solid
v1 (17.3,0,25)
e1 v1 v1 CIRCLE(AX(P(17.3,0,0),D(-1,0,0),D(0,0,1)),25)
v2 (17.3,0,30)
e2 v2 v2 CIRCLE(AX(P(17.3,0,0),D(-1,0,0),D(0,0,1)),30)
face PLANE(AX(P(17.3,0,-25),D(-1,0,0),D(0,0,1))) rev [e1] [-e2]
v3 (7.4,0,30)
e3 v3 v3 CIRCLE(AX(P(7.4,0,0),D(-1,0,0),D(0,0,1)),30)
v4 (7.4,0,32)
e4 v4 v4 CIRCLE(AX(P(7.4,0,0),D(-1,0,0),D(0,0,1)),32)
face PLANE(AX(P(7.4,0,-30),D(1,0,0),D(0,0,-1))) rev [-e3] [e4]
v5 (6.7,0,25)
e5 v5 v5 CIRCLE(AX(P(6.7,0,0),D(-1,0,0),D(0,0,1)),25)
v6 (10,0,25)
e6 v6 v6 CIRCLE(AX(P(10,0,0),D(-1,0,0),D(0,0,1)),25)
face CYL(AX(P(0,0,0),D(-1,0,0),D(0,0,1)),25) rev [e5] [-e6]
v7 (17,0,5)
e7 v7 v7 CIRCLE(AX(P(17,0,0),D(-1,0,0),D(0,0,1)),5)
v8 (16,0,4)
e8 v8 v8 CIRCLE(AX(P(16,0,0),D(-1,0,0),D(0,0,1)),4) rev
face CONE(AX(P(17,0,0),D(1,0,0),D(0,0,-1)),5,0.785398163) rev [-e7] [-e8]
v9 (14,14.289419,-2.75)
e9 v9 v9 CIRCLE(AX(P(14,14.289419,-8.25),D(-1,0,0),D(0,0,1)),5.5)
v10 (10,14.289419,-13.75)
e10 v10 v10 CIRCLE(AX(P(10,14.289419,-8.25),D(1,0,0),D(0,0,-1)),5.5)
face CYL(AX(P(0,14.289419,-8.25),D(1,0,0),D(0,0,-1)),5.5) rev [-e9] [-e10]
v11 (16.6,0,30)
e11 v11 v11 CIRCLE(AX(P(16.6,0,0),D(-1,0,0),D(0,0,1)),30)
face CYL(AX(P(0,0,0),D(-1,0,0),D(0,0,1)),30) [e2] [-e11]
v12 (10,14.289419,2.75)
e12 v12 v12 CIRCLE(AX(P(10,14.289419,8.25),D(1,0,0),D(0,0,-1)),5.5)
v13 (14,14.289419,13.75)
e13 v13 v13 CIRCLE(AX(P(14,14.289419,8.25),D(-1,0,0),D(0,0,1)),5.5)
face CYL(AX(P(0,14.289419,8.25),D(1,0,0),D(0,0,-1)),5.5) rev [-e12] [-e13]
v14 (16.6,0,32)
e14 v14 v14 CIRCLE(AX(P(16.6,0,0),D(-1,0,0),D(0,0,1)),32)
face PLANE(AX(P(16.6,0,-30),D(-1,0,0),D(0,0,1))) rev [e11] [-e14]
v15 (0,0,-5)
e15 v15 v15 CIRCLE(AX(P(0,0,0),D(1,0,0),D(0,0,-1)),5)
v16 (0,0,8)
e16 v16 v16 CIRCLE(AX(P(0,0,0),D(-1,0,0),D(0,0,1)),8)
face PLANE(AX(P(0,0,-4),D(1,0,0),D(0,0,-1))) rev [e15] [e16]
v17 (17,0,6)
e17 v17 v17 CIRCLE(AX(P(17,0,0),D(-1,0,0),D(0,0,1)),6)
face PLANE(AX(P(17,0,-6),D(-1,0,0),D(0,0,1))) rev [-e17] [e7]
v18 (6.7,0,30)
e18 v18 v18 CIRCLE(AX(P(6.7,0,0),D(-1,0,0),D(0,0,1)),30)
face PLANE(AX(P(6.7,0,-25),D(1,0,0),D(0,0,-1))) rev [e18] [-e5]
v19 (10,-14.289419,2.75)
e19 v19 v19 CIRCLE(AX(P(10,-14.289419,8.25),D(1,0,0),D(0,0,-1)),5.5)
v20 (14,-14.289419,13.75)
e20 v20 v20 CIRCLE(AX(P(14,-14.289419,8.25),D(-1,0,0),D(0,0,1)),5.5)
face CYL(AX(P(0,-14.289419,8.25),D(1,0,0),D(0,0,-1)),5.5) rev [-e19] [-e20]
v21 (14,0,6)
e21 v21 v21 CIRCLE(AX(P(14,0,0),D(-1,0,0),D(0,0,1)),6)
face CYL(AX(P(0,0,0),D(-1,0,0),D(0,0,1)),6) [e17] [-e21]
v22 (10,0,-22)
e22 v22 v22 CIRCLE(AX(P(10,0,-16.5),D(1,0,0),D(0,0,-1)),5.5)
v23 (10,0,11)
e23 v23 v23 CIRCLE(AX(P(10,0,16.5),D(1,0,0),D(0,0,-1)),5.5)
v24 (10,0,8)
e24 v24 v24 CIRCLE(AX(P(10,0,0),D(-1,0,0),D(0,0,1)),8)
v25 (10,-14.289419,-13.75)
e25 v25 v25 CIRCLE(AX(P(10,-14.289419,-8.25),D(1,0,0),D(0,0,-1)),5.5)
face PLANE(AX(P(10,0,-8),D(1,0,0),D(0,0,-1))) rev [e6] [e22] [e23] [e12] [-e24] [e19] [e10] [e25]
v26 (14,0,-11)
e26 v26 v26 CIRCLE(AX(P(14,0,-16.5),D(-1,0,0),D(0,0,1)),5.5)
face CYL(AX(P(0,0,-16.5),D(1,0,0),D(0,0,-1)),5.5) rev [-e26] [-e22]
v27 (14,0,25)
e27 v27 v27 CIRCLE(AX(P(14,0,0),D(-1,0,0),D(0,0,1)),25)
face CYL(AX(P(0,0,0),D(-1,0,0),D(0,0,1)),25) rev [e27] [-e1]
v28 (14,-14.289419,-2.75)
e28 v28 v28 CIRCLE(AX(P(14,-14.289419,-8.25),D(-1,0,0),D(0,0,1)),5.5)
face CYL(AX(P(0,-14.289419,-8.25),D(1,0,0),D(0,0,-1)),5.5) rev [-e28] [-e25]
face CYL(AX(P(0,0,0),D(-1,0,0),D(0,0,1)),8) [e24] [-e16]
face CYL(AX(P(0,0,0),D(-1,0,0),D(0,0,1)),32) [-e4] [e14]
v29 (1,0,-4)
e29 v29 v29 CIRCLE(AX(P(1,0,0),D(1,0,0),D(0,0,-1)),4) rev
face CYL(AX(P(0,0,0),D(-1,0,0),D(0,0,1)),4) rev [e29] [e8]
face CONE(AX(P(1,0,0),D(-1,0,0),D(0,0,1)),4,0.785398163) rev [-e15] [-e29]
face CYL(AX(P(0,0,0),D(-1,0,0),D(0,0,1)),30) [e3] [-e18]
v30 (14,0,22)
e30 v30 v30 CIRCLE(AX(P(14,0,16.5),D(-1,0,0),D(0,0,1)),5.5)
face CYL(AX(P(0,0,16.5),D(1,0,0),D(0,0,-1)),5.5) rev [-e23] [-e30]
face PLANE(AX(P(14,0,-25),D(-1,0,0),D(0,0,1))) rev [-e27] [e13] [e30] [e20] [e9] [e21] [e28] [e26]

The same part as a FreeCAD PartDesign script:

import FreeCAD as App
import Part
import Sketcher
Q = App.Units.Quantity


def edges_at(feature, points):
    """Names of the edges that pass closest to the given points."""
    edges = feature.Shape.Edges
    near = lambda p: min(range(len(edges)), key=lambda i: edges[i].distToShape(Part.Vertex(*p))[0])
    return sorted({f"Edge{near(p) + 1}" for p in points})

doc = App.newDocument("Part")
body = doc.addObject("PartDesign::Body", "Body")

# Sketch on XZ plane
sketch1 = body.newObject("Sketcher::SketchObject", "Sketch")
sketch1.AttachmentSupport = (doc.getObject("XZ_Plane"), [""])
sketch1.MapMode = "FlatFace"
sketch1.addGeometry(Part.LineSegment(App.Vector(0, -4, 0), App.Vector(17, -4, 0)), False)
sketch1.addGeometry(Part.LineSegment(App.Vector(17, -4, 0), App.Vector(17, -6, 0)), False)
sketch1.addGeometry(Part.LineSegment(App.Vector(17, -6, 0), App.Vector(14, -6, 0)), False)
sketch1.addGeometry(Part.LineSegment(App.Vector(14, -6, 0), App.Vector(14, -25, 0)), False)
sketch1.addGeometry(Part.LineSegment(App.Vector(14, -25, 0), App.Vector(17.3, -25, 0)), False)
sketch1.addGeometry(Part.LineSegment(App.Vector(17.3, -25, 0), App.Vector(17.3, -30, 0)), False)
sketch1.addGeometry(Part.LineSegment(App.Vector(17.3, -30, 0), App.Vector(16.6, -30, 0)), False)
sketch1.addGeometry(Part.LineSegment(App.Vector(16.6, -30, 0), App.Vector(16.6, -32, 0)), False)
sketch1.addGeometry(Part.LineSegment(App.Vector(16.6, -32, 0), App.Vector(7.4, -32, 0)), False)
sketch1.addGeometry(Part.LineSegment(App.Vector(7.4, -32, 0), App.Vector(7.4, -30, 0)), False)
sketch1.addGeometry(Part.LineSegment(App.Vector(7.4, -30, 0), App.Vector(6.7, -30, 0)), False)
sketch1.addGeometry(Part.LineSegment(App.Vector(6.7, -30, 0), App.Vector(6.7, -25, 0)), False)
sketch1.addGeometry(Part.LineSegment(App.Vector(6.7, -25, 0), App.Vector(10, -25, 0)), False)
sketch1.addGeometry(Part.LineSegment(App.Vector(10, -25, 0), App.Vector(10, -8, 0)), False)
sketch1.addGeometry(Part.LineSegment(App.Vector(10, -8, 0), App.Vector(0, -8, 0)), False)
sketch1.addGeometry(Part.LineSegment(App.Vector(0, -8, 0), App.Vector(0, -4, 0)), False)
sketch1.addConstraint(Sketcher.Constraint("Coincident", 0, 2, 1, 1))
sketch1.addConstraint(Sketcher.Constraint("Coincident", 1, 2, 2, 1))
sketch1.addConstraint(Sketcher.Constraint("Coincident", 2, 2, 3, 1))
sketch1.addConstraint(Sketcher.Constraint("Coincident", 3, 2, 4, 1))
sketch1.addConstraint(Sketcher.Constraint("Coincident", 4, 2, 5, 1))
sketch1.addConstraint(Sketcher.Constraint("Coincident", 5, 2, 6, 1))
sketch1.addConstraint(Sketcher.Constraint("Coincident", 6, 2, 7, 1))
sketch1.addConstraint(Sketcher.Constraint("Coincident", 7, 2, 8, 1))
sketch1.addConstraint(Sketcher.Constraint("Coincident", 8, 2, 9, 1))
sketch1.addConstraint(Sketcher.Constraint("Coincident", 9, 2, 10, 1))
sketch1.addConstraint(Sketcher.Constraint("Coincident", 10, 2, 11, 1))
sketch1.addConstraint(Sketcher.Constraint("Coincident", 11, 2, 12, 1))
sketch1.addConstraint(Sketcher.Constraint("Coincident", 12, 2, 13, 1))
sketch1.addConstraint(Sketcher.Constraint("Coincident", 13, 2, 14, 1))
sketch1.addConstraint(Sketcher.Constraint("Coincident", 14, 2, 15, 1))
sketch1.addConstraint(Sketcher.Constraint("Coincident", 15, 2, 0, 1))
sketch1.addConstraint(Sketcher.Constraint("Horizontal", 0))
sketch1.addConstraint(Sketcher.Constraint("Vertical", 1))
sketch1.addConstraint(Sketcher.Constraint("Horizontal", 2))
sketch1.addConstraint(Sketcher.Constraint("Vertical", 3))
sketch1.addConstraint(Sketcher.Constraint("Horizontal", 4))
sketch1.addConstraint(Sketcher.Constraint("Vertical", 5))
sketch1.addConstraint(Sketcher.Constraint("Horizontal", 6))
sketch1.addConstraint(Sketcher.Constraint("Vertical", 7))
sketch1.addConstraint(Sketcher.Constraint("Horizontal", 8))
sketch1.addConstraint(Sketcher.Constraint("Vertical", 9))
sketch1.addConstraint(Sketcher.Constraint("Horizontal", 10))
sketch1.addConstraint(Sketcher.Constraint("Vertical", 11))
sketch1.addConstraint(Sketcher.Constraint("Horizontal", 12))
sketch1.addConstraint(Sketcher.Constraint("Vertical", 13))
sketch1.addConstraint(Sketcher.Constraint("Horizontal", 14))
sketch1.addConstraint(Sketcher.Constraint("Vertical", 15))
sketch1.addConstraint(Sketcher.Constraint("PointOnObject", 14, 2, -2))
sketch1.addConstraint(Sketcher.Constraint("Horizontal", 6, 2, 9, 2))
sketch1.addConstraint(Sketcher.Constraint("Horizontal", 4, 2, 11, 2))
sketch1.addConstraint(Sketcher.Constraint("Equal", 6, 10))
sketch1.addConstraint(Sketcher.Constraint("Equal", 4, 12))
sketch1.addConstraint(Sketcher.Constraint("Equal", 1, 7))
sketch1.addConstraint(Sketcher.Constraint("Equal", 0, 13))
sketch1.addConstraint(Sketcher.Constraint("DistanceX", 0, 1, 0, 2, Q("17 mm")))
sketch1.addConstraint(Sketcher.Constraint("DistanceX", 2, 2, 2, 1, Q("3 mm")))
sketch1.addConstraint(Sketcher.Constraint("DistanceX", 14, 2, 14, 1, Q("10 mm")))
sketch1.addConstraint(Sketcher.Constraint("DistanceY", 1, 2, 1, 1, Q("2 mm")))
sketch1.addConstraint(Sketcher.Constraint("DistanceY", 3, 2, 3, 1, Q("19 mm")))
sketch1.addConstraint(Sketcher.Constraint("DistanceY", 5, 2, 5, 1, Q("5 mm")))
sketch1.addConstraint(Sketcher.Constraint("DistanceX", 4, 1, 4, 2, Q("3.3 mm")))
sketch1.addConstraint(Sketcher.Constraint("DistanceX", 6, 2, 6, 1, Q("0.7 mm")))
sketch1.addConstraint(Sketcher.Constraint("DistanceY", 0, 2, -1, 1, Q("4 mm")))
revolution = body.newObject("PartDesign::Revolution", "Revolution")
revolution.Profile = sketch1
revolution.ReferenceAxis = (sketch1, ["H_Axis"])
revolution.Angle = 360
doc.recompute()

chamfer = body.newObject("PartDesign::Chamfer", "Chamfer")
chamfer.Base = (revolution, edges_at(revolution, [(0, 0, -4), (17, 0, -4)]))
chamfer.Size = 1

# Sketch on YZ plane
sketch2 = body.newObject("Sketcher::SketchObject", "Sketch001")
sketch2.AttachmentSupport = (doc.getObject("YZ_Plane"), [""])
sketch2.MapMode = "FlatFace"
sketch2.AttachmentOffset = App.Placement(App.Vector(0, 0, 14), App.Rotation())
sketch2.addGeometry(Part.Circle(App.Vector(0, 16, 0), App.Vector(0, 0, 1), 6), False)
sketch2.addGeometry(Part.Circle(App.Vector(14, 8, 0), App.Vector(0, 0, 1), 6), False)
sketch2.addGeometry(Part.Circle(App.Vector(14, -8, 0), App.Vector(0, 0, 1), 6), False)
sketch2.addGeometry(Part.Circle(App.Vector(0, -16, 0), App.Vector(0, 0, 1), 6), False)
sketch2.addGeometry(Part.Circle(App.Vector(-14, -8, 0), App.Vector(0, 0, 1), 6), False)
sketch2.addGeometry(Part.Circle(App.Vector(-14, 8, 0), App.Vector(0, 0, 1), 6), False)
sketch2.addConstraint(Sketcher.Constraint("Equal", 0, 1))
sketch2.addConstraint(Sketcher.Constraint("Equal", 1, 2))
sketch2.addConstraint(Sketcher.Constraint("Equal", 2, 3))
sketch2.addConstraint(Sketcher.Constraint("Equal", 3, 4))
sketch2.addConstraint(Sketcher.Constraint("Equal", 4, 5))
sketch2.addConstraint(Sketcher.Constraint("Symmetric", 0, 3, 3, 3, -1, 1))
sketch2.addConstraint(Sketcher.Constraint("Symmetric", 1, 3, 4, 3, -1, 1))
sketch2.addConstraint(Sketcher.Constraint("Symmetric", 2, 3, 5, 3, -1, 1))
sketch2.addConstraint(Sketcher.Constraint("Symmetric", 2, 3, 4, 3, -2))
sketch2.addConstraint(Sketcher.Constraint("PointOnObject", 0, 3, -2))
sketch2.addConstraint(Sketcher.Constraint("Diameter", 0, Q("11 mm")))
sketch2.addConstraint(Sketcher.Constraint("DistanceY", 3, 3, 0, 3, Q("33 mm")))
sketch2.addConstraint(Sketcher.Constraint("DistanceY", 2, 3, 1, 3, Q("16.5 mm")))
sketch2.addConstraint(Sketcher.Constraint("DistanceX", -1, 1, 1, 3, Q("14.289419 mm")))
pocket1 = body.newObject("PartDesign::Pocket", "Pocket")
pocket1.Profile = sketch2
pocket1.Type = "ThroughAll"
pocket1.Midplane = True

doc.recompute()
